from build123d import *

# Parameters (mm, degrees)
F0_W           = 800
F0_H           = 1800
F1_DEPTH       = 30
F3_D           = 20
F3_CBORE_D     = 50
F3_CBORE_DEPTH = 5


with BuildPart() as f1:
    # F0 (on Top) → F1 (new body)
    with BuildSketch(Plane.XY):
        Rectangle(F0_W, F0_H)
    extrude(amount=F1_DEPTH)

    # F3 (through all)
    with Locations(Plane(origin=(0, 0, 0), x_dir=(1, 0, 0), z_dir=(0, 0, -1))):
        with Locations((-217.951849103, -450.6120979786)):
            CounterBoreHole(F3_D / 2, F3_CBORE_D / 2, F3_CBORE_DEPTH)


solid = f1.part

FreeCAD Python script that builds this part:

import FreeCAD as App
import Part
import Sketcher

V = App.Vector

doc = App.newDocument("Part")
body = doc.addObject("PartDesign::Body", "Body")

# Sketch on XY plane
sketch1 = doc.addObject("Sketcher::SketchObject", "Sketch")
body.addObject(sketch1)
sketch1.AttachmentSupport = (doc.XY_Plane, [""])
sketch1.MapMode = "FlatFace"
sketch1.addGeometry([
    Part.LineSegment(V(-400, 900, 0), V(-400, -900, 0)),
    Part.LineSegment(V(-400, -900, 0), V(400, -900, 0)),
    Part.LineSegment(V(400, -900, 0), V(400, 900, 0)),
    Part.LineSegment(V(400, 900, 0), V(-400, 900, 0)),
], False)
sketch1.addConstraint([
    Sketcher.Constraint("Coincident", 0, 2, 1, 1),
    Sketcher.Constraint("Coincident", 1, 2, 2, 1),
    Sketcher.Constraint("Coincident", 2, 2, 3, 1),
    Sketcher.Constraint("Coincident", 3, 2, 0, 1),
    Sketcher.Constraint("Vertical", 0),
    Sketcher.Constraint("Horizontal", 1),
    Sketcher.Constraint("Vertical", 2),
    Sketcher.Constraint("Horizontal", 3),
    Sketcher.Constraint("Symmetric", 0, 2, 2, 2, -1, 1),
    Sketcher.Constraint("DistanceX", 1, 1, 1, 2, 800.0),
    Sketcher.Constraint("DistanceY", 0, 2, 0, 1, 1800.0),
])
pad1 = doc.addObject("PartDesign::Pad", "Pad")
body.addObject(pad1)
pad1.Profile = sketch1
pad1.Length = 30

# Sketch on XY plane
sketch2 = doc.addObject("Sketcher::SketchObject", "Sketch001")
body.addObject(sketch2)
sketch2.AttachmentSupport = (doc.XY_Plane, [""])
sketch2.MapMode = "FlatFace"
sketch2.addGeometry(Part.Circle(V(-218, 451, 0), V(0, 0, 1), 10), False)
sketch2.addConstraint([
    Sketcher.Constraint("Diameter", 0, 20.0),
    Sketcher.Constraint("DistanceX", 0, 3, -1, 1, 217.951849),
    Sketcher.Constraint("DistanceY", -1, 1, 0, 3, 450.612098),
])
doc.recompute()
hole = doc.addObject("PartDesign::Hole", "Hole")
body.addObject(hole)
hole.Profile = sketch2
hole.ThreadType = "None"
hole.Diameter = 20
hole.DepthType = "ThroughAll"
hole.HoleCutType = "Counterbore"
hole.HoleCutDiameter = 50
hole.HoleCutDepth = 5
hole.Reversed = True

doc.recompute()
